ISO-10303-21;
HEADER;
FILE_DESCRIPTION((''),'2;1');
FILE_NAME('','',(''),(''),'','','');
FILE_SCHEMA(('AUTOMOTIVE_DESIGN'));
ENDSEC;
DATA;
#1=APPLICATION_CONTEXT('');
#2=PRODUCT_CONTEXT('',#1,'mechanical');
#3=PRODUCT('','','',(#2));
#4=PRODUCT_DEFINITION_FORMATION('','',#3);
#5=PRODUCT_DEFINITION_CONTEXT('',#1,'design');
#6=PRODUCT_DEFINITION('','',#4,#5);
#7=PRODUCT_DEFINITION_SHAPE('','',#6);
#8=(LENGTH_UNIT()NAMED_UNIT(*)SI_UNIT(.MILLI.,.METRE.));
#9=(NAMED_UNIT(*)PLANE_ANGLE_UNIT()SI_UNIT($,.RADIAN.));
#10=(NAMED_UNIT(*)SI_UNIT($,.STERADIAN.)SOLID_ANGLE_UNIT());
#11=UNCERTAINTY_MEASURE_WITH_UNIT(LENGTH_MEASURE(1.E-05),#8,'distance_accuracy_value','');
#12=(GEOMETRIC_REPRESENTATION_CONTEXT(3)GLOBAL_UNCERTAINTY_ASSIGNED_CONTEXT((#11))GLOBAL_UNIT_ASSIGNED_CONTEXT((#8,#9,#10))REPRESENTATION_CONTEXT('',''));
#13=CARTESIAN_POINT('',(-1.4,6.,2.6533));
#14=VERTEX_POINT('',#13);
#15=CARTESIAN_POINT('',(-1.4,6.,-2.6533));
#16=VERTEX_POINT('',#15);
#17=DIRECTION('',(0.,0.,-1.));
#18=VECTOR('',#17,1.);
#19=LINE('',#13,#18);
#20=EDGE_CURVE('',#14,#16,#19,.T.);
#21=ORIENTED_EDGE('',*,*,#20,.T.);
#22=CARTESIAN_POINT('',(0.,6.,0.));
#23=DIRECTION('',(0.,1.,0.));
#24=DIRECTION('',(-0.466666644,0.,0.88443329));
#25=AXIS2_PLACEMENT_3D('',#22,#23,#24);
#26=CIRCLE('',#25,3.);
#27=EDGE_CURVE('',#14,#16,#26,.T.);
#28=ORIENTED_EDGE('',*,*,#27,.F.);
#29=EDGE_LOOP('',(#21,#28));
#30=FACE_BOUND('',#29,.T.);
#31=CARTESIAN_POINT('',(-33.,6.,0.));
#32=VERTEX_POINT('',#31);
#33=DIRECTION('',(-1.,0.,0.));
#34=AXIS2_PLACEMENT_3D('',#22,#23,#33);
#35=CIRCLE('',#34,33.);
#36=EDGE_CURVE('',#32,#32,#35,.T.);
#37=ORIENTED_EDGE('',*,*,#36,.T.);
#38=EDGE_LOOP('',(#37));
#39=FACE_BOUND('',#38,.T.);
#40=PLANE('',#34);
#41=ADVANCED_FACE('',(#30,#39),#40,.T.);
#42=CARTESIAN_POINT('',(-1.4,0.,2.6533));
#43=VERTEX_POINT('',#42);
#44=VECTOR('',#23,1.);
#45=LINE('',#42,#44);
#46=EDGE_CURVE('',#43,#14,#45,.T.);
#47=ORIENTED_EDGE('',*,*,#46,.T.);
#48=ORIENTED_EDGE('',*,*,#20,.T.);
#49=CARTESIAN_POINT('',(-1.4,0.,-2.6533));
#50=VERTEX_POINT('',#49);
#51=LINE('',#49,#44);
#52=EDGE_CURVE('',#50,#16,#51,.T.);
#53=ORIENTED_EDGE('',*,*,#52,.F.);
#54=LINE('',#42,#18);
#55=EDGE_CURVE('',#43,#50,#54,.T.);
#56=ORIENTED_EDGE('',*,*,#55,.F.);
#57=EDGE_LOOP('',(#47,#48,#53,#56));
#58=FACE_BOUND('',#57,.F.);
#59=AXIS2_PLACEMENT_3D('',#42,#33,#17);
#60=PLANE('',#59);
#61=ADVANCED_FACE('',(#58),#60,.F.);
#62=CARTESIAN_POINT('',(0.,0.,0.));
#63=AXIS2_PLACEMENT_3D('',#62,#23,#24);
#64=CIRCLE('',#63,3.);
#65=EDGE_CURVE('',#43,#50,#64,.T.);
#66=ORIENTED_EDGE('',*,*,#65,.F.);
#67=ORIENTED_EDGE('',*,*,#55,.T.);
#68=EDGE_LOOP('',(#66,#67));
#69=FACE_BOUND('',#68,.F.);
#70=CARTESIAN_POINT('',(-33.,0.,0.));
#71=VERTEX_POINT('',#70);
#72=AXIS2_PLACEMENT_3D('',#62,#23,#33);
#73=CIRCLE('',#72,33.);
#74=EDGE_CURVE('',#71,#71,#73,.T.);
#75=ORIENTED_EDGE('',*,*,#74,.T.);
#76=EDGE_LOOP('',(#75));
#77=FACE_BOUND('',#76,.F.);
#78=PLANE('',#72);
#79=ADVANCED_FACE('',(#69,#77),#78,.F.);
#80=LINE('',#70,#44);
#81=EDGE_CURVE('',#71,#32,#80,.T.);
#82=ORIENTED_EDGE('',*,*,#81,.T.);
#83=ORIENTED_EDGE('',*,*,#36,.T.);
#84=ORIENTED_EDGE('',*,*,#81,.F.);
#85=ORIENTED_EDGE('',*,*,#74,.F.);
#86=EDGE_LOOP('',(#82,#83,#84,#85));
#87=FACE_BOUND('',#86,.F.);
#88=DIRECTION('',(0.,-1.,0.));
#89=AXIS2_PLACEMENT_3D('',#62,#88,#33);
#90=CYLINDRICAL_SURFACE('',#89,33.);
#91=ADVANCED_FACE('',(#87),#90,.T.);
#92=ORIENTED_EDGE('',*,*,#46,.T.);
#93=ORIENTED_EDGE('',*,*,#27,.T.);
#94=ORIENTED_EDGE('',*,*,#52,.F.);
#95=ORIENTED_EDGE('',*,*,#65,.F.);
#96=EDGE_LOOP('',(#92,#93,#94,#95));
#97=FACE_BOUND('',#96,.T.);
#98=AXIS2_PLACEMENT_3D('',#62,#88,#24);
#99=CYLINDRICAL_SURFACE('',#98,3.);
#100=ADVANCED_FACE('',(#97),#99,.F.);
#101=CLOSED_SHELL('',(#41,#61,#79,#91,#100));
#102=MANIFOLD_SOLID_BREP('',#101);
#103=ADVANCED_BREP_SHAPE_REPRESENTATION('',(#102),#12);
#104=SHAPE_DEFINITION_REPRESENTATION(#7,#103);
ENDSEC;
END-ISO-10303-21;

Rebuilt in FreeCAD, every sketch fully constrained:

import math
import FreeCAD as App
import Part
import Sketcher

doc = App.newDocument("Part")
body = doc.addObject("PartDesign::Body", "Body")

sketch1 = body.newObject("Sketcher::SketchObject", "Sketch")
sketch1.AttachmentSupport = (doc.getObject("XZ_Plane"), [""])
sketch1.MapMode = "FlatFace"
sketch1.addGeometry(Part.Circle(App.Vector(0, 0, 0), App.Vector(0, 0, 1), 33), False)
sketch1.addGeometry(Part.ArcOfCircle(Part.Circle(App.Vector(0, 0, 0), App.Vector(0, 0, 1), 3), math.radians(-117.818138), math.radians(117.818138)), False)
sketch1.addGeometry(Part.LineSegment(App.Vector(-1.4, 2.6533, 0), App.Vector(-1.4, -2.6533, 0)), False)
sketch1.addConstraint(Sketcher.Constraint("Coincident", 1, 1, 2, 2))
sketch1.addConstraint(Sketcher.Constraint("Coincident", 2, 1, 1, 2))
sketch1.addConstraint(Sketcher.Constraint("Vertical", 2))
sketch1.addConstraint(Sketcher.Constraint("Coincident", 0, 3, -1, 1))
sketch1.addConstraint(Sketcher.Constraint("Coincident", 1, 3, -1, 1))
sketch1.addConstraint(Sketcher.Constraint("Diameter", 0, 66.0))
sketch1.addConstraint(Sketcher.Constraint("Radius", 1, 3.0))
sketch1.addConstraint(Sketcher.Constraint("DistanceX", 1, 1, -1, 1, 1.4))
pad1 = body.newObject("PartDesign::Pad", "Pad")
pad1.Profile = sketch1
pad1.Length = 6
pad1.Reversed = True

doc.recompute()
